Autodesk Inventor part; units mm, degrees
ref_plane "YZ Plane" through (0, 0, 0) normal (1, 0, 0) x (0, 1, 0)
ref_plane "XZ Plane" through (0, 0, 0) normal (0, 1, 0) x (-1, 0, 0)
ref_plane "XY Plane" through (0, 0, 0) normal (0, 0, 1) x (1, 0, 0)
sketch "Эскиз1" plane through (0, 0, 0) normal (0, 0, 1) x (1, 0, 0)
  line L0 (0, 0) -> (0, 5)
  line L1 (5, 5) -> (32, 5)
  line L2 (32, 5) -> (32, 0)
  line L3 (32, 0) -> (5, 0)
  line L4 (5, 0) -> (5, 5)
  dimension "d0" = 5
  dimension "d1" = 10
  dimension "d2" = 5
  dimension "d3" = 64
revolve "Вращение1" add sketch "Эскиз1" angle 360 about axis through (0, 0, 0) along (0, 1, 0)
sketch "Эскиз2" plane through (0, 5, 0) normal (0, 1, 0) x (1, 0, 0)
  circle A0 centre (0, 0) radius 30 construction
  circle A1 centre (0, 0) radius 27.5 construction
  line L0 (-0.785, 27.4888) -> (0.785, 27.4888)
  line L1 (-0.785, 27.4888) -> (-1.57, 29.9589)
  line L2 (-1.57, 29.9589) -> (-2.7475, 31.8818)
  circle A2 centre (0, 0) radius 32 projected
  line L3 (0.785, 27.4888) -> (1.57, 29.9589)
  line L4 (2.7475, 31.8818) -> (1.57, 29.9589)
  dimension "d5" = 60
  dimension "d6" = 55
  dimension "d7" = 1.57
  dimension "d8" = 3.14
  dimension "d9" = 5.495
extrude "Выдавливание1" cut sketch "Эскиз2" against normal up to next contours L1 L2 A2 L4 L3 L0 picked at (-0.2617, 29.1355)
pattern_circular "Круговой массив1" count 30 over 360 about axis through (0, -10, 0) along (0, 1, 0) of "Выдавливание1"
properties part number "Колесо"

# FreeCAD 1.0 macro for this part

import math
import FreeCAD as App
import Part
import Sketcher

V = App.Vector
Q = App.Units.Quantity

doc = App.newDocument("Part")
params = doc.addObject("Spreadsheet::Sheet", "Params")
for row, (alias, value) in enumerate([
    ("sketch1_height", "5 mm"),
    ("sketch1_width", "27 mm"),
    ("revolution_angle", "360 deg"),
    ("sketch2_radius", "32 mm"),
    ("sketch2_width", "1.57 mm"),
], start=1):
    params.set(f"A{row}", alias)
    params.set(f"B{row}", "=" + value)
    params.setAlias(f"B{row}", alias)

body = doc.addObject("PartDesign::Body", "Body")

# Sketch on XY plane
sketch1 = doc.addObject("Sketcher::SketchObject", "Sketch")
body.addObject(sketch1)
sketch1.AttachmentSupport = (doc.XY_Plane, [""])
sketch1.MapMode = "FlatFace"
sketch1.addGeometry([
    Part.LineSegment(V(32, 5, 0), V(5, 5, 0)),
    Part.LineSegment(V(5, 5, 0), V(5, 0, 0)),
    Part.LineSegment(V(5, 0, 0), V(32, 0, 0)),
    Part.LineSegment(V(32, 0, 0), V(32, 5, 0)),
], False)
sketch1.addConstraint([
    Sketcher.Constraint("Coincident", 0, 2, 1, 1),
    Sketcher.Constraint("Coincident", 1, 2, 2, 1),
    Sketcher.Constraint("Coincident", 2, 2, 3, 1),
    Sketcher.Constraint("Coincident", 3, 2, 0, 1),
    Sketcher.Constraint("Horizontal", 0),
    Sketcher.Constraint("Vertical", 1),
    Sketcher.Constraint("Horizontal", 2),
    Sketcher.Constraint("Vertical", 3),
    Sketcher.Constraint("PointOnObject", 1, 2, -1),
    Sketcher.Constraint("DistanceY", 1, 2, 1, 1, 5.0),
    Sketcher.Constraint("DistanceX", -1, 1, 0, 2, 5.0),
    Sketcher.Constraint("DistanceX", 0, 2, 0, 1, 27.0),
])
sketch1.setExpression("Constraints[9]", "Params.sketch1_height")
sketch1.setExpression("Constraints[11]", "Params.sketch1_width")
revolution = doc.addObject("PartDesign::Revolution", "Revolution")
body.addObject(revolution)
revolution.Profile = sketch1
revolution.ReferenceAxis = (sketch1, ["V_Axis"])
revolution.setExpression("Angle", "Params.revolution_angle")

# Sketch on XZ plane
sketch2 = doc.addObject("Sketcher::SketchObject", "Sketch001")
body.addObject(sketch2)
sketch2.AttachmentSupport = (doc.XZ_Plane, [""])
sketch2.MapMode = "FlatFace"
sketch2.AttachmentOffset = App.Placement(V(0, 0, -5), App.Rotation())
sketch2.addGeometry([
    Part.LineSegment(V(-1.6, -30, 0), V(-0.8, -27.5, 0)),  # 0
    Part.LineSegment(V(-0.8, -27.5, 0), V(0.8, -27.5, 0)),  # 1
    Part.LineSegment(V(0.8, -27.5, 0), V(1.6, -30, 0)),  # 2
    Part.LineSegment(V(1.6, -30, 0), V(2.7, -31.9, 0)),  # 3
    Part.ArcOfCircle(Part.Circle(V(0, 0, 0), V(0, 0, 1), 32), math.radians(-94.93), math.radians(-85.07)),  # 4
    Part.LineSegment(V(-2.7, -31.9, 0), V(-1.6, -30, 0)),  # 5
], False)
sketch2.addConstraint([
    Sketcher.Constraint("Coincident", 0, 2, 1, 1),
    Sketcher.Constraint("Coincident", 1, 2, 2, 1),
    Sketcher.Constraint("Coincident", 2, 2, 3, 1),
    Sketcher.Constraint("Coincident", 3, 2, 4, 2),
    Sketcher.Constraint("Coincident", 4, 1, 5, 1),
    Sketcher.Constraint("Coincident", 5, 2, 0, 1),
    Sketcher.Constraint("Horizontal", 1),
    Sketcher.Constraint("Coincident", 4, 3, -1, 1),
    Sketcher.Constraint("Symmetric", 2, 2, 5, 2, -2),
    Sketcher.Constraint("Horizontal", 3, 2, 4, 1),
    Sketcher.Constraint("Equal", 0, 2),
    Sketcher.Constraint("Radius", 4, 32.0),
    Sketcher.Constraint("DistanceX", 1, 1, 1, 2, 1.57),
    Sketcher.Constraint("DistanceX", -1, 1, 2, 2, 1.57),
    Sketcher.Constraint("DistanceX", 4, 1, 3, 2, 5.495),
    Sketcher.Constraint("Angle", 0, Q("72.3697 deg")),
    Sketcher.Constraint("DistanceY", 2, 2, -1, 1, 29.959),
])
sketch2.setExpression("Constraints[11]", "Params.sketch2_radius")
sketch2.setExpression("Constraints[12]", "Params.sketch2_width")
pocket1 = doc.addObject("PartDesign::Pocket", "Pocket")
body.addObject(pocket1)
pocket1.Profile = sketch2
pocket1.Type = "UpToFirst"
pocket1.Reversed = True
doc.recompute()

polarpattern = doc.addObject("PartDesign::PolarPattern", "PolarPattern")
body.addObject(polarpattern)
polarpattern.Originals = [pocket1]
polarpattern.Axis = (doc.Y_Axis, [""])
polarpattern.Angle = 360
polarpattern.Occurrences = 30
body.Tip = polarpattern

doc.recompute()
